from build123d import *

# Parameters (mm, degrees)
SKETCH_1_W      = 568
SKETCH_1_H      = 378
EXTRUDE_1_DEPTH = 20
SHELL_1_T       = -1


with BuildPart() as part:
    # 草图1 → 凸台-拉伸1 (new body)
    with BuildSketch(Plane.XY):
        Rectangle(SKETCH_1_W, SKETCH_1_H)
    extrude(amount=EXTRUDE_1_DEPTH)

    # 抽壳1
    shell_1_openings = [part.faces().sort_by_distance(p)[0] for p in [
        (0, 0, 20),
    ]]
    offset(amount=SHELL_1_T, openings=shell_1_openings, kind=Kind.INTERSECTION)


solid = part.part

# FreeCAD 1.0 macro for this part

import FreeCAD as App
import Part
import Sketcher
from FreeCAD import Vector


def faces_at(feature, points):
    """Names of the faces that lie closest to the given points."""
    faces = feature.Shape.Faces
    near = lambda p: min(range(len(faces)), key=lambda i: faces[i].distToShape(Part.Vertex(*p))[0])
    return sorted({f"Face{near(p) + 1}" for p in points})


def add_polygon(sketch, points):
    """Adds a closed chain of lines whose ends are joined by coincident constraints."""
    first, n = sketch.GeometryCount, len(points)
    for a, b in zip(points, points[1:] + points[:1]):
        sketch.addGeometry(Part.LineSegment(App.Vector(*a, 0), App.Vector(*b, 0)), False)
    for i in range(n):
        sketch.addConstraint(Sketcher.Constraint("Coincident", first + i, 2, first + (i + 1) % n, 1))

doc = App.newDocument("Part")
body = doc.addObject("PartDesign::Body", "Body")

# Sketch on XY plane
sketch1 = doc.addObject("Sketcher::SketchObject", "Sketch")
body.addObject(sketch1)
sketch1.AttachmentSupport = (doc.XY_Plane, [""])
sketch1.MapMode = "FlatFace"
add_polygon(sketch1, [(-284, 189), (-284, -189), (284, -189), (284, 189)])  # lines 0-3
sketch1.addConstraint([
    Sketcher.Constraint("Vertical", 0),
    Sketcher.Constraint("Horizontal", 1),
    Sketcher.Constraint("Vertical", 2),
    Sketcher.Constraint("Horizontal", 3),
    Sketcher.Constraint("Symmetric", 0, 2, 2, 2, -1, 1),
    Sketcher.Constraint("DistanceX", 1, 1, 1, 2, 568.0),
    Sketcher.Constraint("DistanceY", 0, 2, 0, 1, 378.0),
])
pad1 = doc.addObject("PartDesign::Pad", "Pad")
body.addObject(pad1)
pad1.Profile = sketch1
pad1.Length = 20
doc.recompute()

thickness = doc.addObject("PartDesign::Thickness", "Thickness")
body.addObject(thickness)
thickness.Base = (pad1, faces_at(pad1, [(0, 0, 20)]))
thickness.Value = 1
thickness.Reversed = True
thickness.Join = "Intersection"

doc.recompute()
